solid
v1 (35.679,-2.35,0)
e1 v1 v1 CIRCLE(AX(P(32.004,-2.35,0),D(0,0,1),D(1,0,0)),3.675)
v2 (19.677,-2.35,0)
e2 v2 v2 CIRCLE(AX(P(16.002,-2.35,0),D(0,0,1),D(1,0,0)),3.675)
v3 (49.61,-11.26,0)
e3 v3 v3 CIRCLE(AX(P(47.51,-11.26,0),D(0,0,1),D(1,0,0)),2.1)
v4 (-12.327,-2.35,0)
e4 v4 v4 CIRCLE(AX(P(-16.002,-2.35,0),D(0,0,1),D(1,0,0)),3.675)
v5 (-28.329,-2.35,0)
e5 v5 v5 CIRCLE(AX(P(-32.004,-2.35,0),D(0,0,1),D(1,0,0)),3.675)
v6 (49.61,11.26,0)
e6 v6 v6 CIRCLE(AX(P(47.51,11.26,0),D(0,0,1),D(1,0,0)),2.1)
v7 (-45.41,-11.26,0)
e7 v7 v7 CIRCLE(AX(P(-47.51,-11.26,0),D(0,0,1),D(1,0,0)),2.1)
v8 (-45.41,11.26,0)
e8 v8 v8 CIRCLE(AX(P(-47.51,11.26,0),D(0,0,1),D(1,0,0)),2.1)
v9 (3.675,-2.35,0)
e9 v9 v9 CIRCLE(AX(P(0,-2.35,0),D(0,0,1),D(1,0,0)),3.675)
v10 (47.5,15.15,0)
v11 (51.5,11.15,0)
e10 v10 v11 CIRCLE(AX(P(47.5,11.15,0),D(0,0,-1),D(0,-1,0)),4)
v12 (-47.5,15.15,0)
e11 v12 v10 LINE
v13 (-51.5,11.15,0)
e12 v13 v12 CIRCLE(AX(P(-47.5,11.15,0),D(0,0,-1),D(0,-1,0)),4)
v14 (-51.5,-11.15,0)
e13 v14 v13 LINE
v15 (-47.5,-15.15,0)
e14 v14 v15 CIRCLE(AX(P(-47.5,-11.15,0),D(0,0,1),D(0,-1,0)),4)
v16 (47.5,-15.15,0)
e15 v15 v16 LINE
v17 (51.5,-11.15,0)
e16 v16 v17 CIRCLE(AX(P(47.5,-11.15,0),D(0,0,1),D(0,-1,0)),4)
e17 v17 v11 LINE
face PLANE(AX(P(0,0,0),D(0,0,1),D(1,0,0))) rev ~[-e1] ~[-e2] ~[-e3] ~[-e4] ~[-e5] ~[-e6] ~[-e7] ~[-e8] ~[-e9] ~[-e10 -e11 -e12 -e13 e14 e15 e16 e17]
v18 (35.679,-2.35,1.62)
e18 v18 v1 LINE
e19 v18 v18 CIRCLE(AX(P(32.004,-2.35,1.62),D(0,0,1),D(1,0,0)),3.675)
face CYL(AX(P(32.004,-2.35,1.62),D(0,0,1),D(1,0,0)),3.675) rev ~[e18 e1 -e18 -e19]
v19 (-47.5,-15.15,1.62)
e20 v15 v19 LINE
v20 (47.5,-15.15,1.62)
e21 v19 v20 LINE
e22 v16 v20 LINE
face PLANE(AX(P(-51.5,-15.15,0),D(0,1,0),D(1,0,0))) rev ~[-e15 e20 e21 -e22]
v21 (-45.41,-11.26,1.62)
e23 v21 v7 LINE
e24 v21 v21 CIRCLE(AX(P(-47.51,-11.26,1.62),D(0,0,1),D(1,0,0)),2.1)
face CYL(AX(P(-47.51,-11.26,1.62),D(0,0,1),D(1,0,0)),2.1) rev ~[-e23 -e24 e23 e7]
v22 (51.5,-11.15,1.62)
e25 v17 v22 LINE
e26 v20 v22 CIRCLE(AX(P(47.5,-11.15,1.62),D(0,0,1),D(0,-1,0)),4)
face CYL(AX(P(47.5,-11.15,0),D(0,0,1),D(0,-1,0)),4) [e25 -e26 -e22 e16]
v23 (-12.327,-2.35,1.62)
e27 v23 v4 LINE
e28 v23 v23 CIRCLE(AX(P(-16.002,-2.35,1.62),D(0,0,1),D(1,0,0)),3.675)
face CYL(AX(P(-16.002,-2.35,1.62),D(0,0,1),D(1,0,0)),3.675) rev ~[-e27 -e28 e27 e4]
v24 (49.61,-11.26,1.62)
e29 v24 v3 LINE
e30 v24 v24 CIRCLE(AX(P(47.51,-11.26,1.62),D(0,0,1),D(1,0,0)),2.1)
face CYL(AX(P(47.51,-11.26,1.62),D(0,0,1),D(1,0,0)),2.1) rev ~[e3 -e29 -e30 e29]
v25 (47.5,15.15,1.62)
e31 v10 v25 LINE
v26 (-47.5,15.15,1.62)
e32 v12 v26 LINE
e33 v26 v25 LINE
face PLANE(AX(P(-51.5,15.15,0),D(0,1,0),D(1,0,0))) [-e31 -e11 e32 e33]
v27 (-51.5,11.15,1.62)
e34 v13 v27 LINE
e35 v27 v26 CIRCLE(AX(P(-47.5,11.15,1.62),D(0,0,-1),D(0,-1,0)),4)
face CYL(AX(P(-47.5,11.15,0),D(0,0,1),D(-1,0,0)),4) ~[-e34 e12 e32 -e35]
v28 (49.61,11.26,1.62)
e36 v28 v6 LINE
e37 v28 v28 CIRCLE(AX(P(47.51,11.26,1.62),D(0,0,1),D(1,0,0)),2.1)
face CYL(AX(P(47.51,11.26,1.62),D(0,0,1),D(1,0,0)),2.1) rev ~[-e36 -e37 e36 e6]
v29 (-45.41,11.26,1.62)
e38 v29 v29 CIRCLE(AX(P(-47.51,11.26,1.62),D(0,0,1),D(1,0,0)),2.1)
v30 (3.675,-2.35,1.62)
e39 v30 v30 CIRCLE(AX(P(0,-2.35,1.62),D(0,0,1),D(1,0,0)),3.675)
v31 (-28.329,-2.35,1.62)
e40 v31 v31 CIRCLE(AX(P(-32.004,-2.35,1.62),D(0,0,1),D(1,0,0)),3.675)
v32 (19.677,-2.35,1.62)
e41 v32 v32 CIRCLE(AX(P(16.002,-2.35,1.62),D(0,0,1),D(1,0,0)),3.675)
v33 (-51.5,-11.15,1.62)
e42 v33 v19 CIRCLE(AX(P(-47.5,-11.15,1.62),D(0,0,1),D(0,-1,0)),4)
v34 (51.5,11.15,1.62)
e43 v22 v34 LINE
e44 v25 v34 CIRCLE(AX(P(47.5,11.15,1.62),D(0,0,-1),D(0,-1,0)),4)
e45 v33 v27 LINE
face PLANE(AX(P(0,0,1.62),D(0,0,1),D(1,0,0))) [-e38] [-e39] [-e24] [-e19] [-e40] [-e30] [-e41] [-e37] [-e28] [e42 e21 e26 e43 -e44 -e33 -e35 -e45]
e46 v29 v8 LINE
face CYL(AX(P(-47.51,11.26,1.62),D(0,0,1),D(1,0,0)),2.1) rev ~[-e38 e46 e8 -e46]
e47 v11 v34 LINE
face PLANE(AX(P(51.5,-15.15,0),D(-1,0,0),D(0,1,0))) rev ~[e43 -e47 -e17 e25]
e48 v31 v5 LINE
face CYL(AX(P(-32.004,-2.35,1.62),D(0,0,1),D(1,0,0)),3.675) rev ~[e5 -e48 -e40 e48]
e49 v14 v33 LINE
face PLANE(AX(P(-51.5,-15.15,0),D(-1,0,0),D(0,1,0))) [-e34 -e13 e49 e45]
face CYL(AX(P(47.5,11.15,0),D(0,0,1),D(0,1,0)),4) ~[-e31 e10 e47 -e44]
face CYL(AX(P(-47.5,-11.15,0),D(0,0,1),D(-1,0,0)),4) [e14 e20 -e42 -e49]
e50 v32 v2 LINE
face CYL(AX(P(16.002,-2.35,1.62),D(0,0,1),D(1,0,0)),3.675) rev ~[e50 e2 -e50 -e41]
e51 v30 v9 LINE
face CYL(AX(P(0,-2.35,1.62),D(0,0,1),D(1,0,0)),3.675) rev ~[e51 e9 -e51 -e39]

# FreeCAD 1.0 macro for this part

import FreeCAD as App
import Part
import Sketcher
from FreeCAD import Vector


def edges_at(feature, points):
    """Names of the edges that pass closest to the given points."""
    edges = feature.Shape.Edges
    near = lambda p: min(range(len(edges)), key=lambda i: edges[i].distToShape(Part.Vertex(*p))[0])
    return sorted({f"Edge{near(p) + 1}" for p in points})

doc = App.newDocument("Part")
params = doc.addObject("Spreadsheet::Sheet", "Params")
for row, (alias, value) in enumerate([
    ("sketch1_width", "103 mm"),
    ("sketch1_height", "30.3 mm"),
    ("pad1_length", "1.62 mm"),
    ("sketch2_diameter", "4.2 mm"),
    ("pocket1_length", "5 mm"),
    ("sketch3_diameter", "7.35 mm"),
    ("pocket2_length", "5 mm"),
    ("fillet_radius", "4 mm"),
], start=1):
    params.set(f"A{row}", alias)
    params.set(f"B{row}", "=" + value)
    params.setAlias(f"B{row}", alias)

body = doc.addObject("PartDesign::Body", "Body")

# Sketch on XY plane
sketch1 = body.newObject("Sketcher::SketchObject", "Sketch")
sketch1.AttachmentSupport = (doc.getObject("XY_Plane"), [""])
sketch1.MapMode = "FlatFace"
sketch1.addGeometry([
    Part.LineSegment(Vector(-52, 15, 0), Vector(-52, -15, 0)),
    Part.LineSegment(Vector(-52, -15, 0), Vector(52, -15, 0)),
    Part.LineSegment(Vector(52, -15, 0), Vector(52, 15, 0)),
    Part.LineSegment(Vector(52, 15, 0), Vector(-52, 15, 0)),
], False)
sketch1.addConstraint([
    Sketcher.Constraint("Coincident", 0, 2, 1, 1),
    Sketcher.Constraint("Coincident", 1, 2, 2, 1),
    Sketcher.Constraint("Coincident", 2, 2, 3, 1),
    Sketcher.Constraint("Coincident", 3, 2, 0, 1),
    Sketcher.Constraint("Vertical", 0),
    Sketcher.Constraint("Horizontal", 1),
    Sketcher.Constraint("Vertical", 2),
    Sketcher.Constraint("Horizontal", 3),
    Sketcher.Constraint("Symmetric", 0, 2, 2, 2, -1, 1),
    Sketcher.Constraint("DistanceX", 1, 1, 1, 2, 103.0),
    Sketcher.Constraint("DistanceY", 0, 2, 0, 1, 30.3),
])
sketch1.setExpression("Constraints[9]", "Params.sketch1_width")
sketch1.setExpression("Constraints[10]", "Params.sketch1_height")
pad1 = body.newObject("PartDesign::Pad", "Pad")
pad1.Profile = sketch1
pad1.setExpression("Length", "Params.pad1_length")

# Sketch on XY plane
sketch2 = body.newObject("Sketcher::SketchObject", "Sketch001")
sketch2.AttachmentSupport = (doc.getObject("XY_Plane"), [""])
sketch2.MapMode = "FlatFace"
sketch2.AttachmentOffset = App.Placement(Vector(0, 0, 1.62), App.Rotation())
sketch2.addGeometry([
    Part.Circle(Vector(-47.5, 11.3, 0), Vector(0, 0, 1), 2.1),
    Part.Circle(Vector(47.5, 11.3, 0), Vector(0, 0, 1), 2.1),
    Part.Circle(Vector(-47.5, -11.3, 0), Vector(0, 0, 1), 2.1),
    Part.Circle(Vector(47.5, -11.3, 0), Vector(0, 0, 1), 2.1),
], False)
sketch2.addConstraint([
    Sketcher.Constraint("Equal", 0, 1),
    Sketcher.Constraint("Equal", 1, 2),
    Sketcher.Constraint("Equal", 2, 3),
    Sketcher.Constraint("Symmetric", 1, 3, 2, 3, -1, 1),
    Sketcher.Constraint("Symmetric", 0, 3, 3, 3, -1, 1),
    Sketcher.Constraint("Symmetric", 0, 3, 1, 3, -2),
    Sketcher.Constraint("Diameter", 0, 4.2),
    Sketcher.Constraint("DistanceX", 0, 3, -1, 1, 47.51),
    Sketcher.Constraint("DistanceY", -1, 1, 0, 3, 11.26),
])
sketch2.setExpression("Constraints[6]", "Params.sketch2_diameter")
pocket1 = body.newObject("PartDesign::Pocket", "Pocket")
pocket1.Profile = sketch2
pocket1.setExpression("Length", "Params.pocket1_length")

# Sketch on XY plane
sketch3 = body.newObject("Sketcher::SketchObject", "Sketch002")
sketch3.AttachmentSupport = (doc.getObject("XY_Plane"), [""])
sketch3.MapMode = "FlatFace"
sketch3.AttachmentOffset = App.Placement(Vector(0, 0, 1.62), App.Rotation())
sketch3.addGeometry([
    Part.Circle(Vector(-32, -2.4, 0), Vector(0, 0, 1), 3.7),  # 0
    Part.Circle(Vector(-16, -2.4, 0), Vector(0, 0, 1), 3.7),  # 1
    Part.Circle(Vector(0, -2.4, 0), Vector(0, 0, 1), 3.7),  # 2
    Part.Circle(Vector(16, -2.4, 0), Vector(0, 0, 1), 3.7),  # 3
    Part.Circle(Vector(32, -2.4, 0), Vector(0, 0, 1), 3.7),  # 4
], False)
sketch3.addConstraint([
    Sketcher.Constraint("Equal", 0, 1),
    Sketcher.Constraint("Equal", 1, 2),
    Sketcher.Constraint("Equal", 2, 3),
    Sketcher.Constraint("Equal", 3, 4),
    Sketcher.Constraint("Symmetric", 1, 3, 3, 3, -2),
    Sketcher.Constraint("Symmetric", 0, 3, 4, 3, -2),
    Sketcher.Constraint("PointOnObject", 2, 3, -2),
    Sketcher.Constraint("Horizontal", 0, 3, 1, 3),
    Sketcher.Constraint("Horizontal", 1, 3, 2, 3),
    Sketcher.Constraint("Diameter", 0, 7.35),
    Sketcher.Constraint("DistanceY", 0, 3, -1, 1, 2.35),
    Sketcher.Constraint("DistanceX", 0, 3, -1, 1, 32.004),
    Sketcher.Constraint("DistanceX", 1, 3, -1, 1, 16.002),
])
sketch3.setExpression("Constraints[9]", "Params.sketch3_diameter")
pocket2 = body.newObject("PartDesign::Pocket", "Pocket001")
pocket2.Profile = sketch3
pocket2.setExpression("Length", "Params.pocket2_length")
doc.recompute()

fillet = body.newObject("PartDesign::Fillet", "Fillet")
fillet.Base = (pocket2, edges_at(pocket2, [
    (-51.5, -15.15, 0.81),
    (-51.5, 15.15, 0.81),
    (51.5, -15.15, 0.81),
    (51.5, 15.15, 0.81),
]))
fillet.setExpression("Radius", "Params.fillet_radius")

doc.recompute()
